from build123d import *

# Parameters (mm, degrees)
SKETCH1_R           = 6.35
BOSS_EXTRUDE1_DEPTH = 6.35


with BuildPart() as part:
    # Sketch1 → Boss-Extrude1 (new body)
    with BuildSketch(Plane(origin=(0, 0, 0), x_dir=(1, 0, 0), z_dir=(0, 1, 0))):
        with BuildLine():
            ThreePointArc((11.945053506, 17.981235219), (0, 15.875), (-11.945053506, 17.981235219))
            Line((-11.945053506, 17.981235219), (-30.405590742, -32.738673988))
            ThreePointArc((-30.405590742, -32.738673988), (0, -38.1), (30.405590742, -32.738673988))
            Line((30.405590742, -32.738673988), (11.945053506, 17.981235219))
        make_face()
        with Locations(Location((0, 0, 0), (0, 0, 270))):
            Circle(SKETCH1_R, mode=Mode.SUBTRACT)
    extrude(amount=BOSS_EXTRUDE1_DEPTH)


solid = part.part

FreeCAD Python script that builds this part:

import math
import FreeCAD as App
import Part
import Sketcher

V = App.Vector
Q = App.Units.Quantity

doc = App.newDocument("Part")
body = doc.addObject("PartDesign::Body", "Body")

# Sketch on XZ plane
sketch1 = body.newObject("Sketcher::SketchObject", "Sketch")
sketch1.AttachmentSupport = (doc.getObject("XZ_Plane"), [""])
sketch1.MapMode = "FlatFace"
sketch1.addGeometry([
    Part.ArcOfCircle(Part.Circle(V(0, -50.8, 0), V(0, 0, 1), 34.925), math.radians(70), math.radians(110)),  # 0
    Part.LineSegment(V(-11.945054, -17.981235, 0), V(-30.405591, 32.738674, 0)),  # 1
    Part.ArcOfCircle(Part.Circle(V(0, -50.8, 0), V(0, 0, 1), 88.9), math.radians(70), math.radians(110)),  # 2
    Part.LineSegment(V(30.405591, 32.738674, 0), V(11.945054, -17.981235, 0)),  # 3
    Part.Circle(V(0, 0, 0), V(0, 0, 1), 6.35),  # 4
], False)
sketch1.addConstraint([
    Sketcher.Constraint("Coincident", 0, 2, 1, 1),
    Sketcher.Constraint("Coincident", 1, 2, 2, 2),
    Sketcher.Constraint("Coincident", 2, 1, 3, 1),
    Sketcher.Constraint("Coincident", 3, 2, 0, 1),
    Sketcher.Constraint("Coincident", 4, 3, -1, 1),
    Sketcher.Constraint("Coincident", 2, 3, 0, 3),
    Sketcher.Constraint("Symmetric", 1, 2, 2, 1, -2),
    Sketcher.Constraint("Horizontal", 0, 2, 3, 2),
    Sketcher.Constraint("Diameter", 4, Q("0.5 in")),
    Sketcher.Constraint("Radius", 2, Q("3.5 in")),
    Sketcher.Constraint("DistanceY", 0, 3, -1, 1, Q("2 in")),
    Sketcher.Constraint("Angle", 1, Q("110 deg")),
    Sketcher.Constraint("Radius", 0, Q("1.375 in")),
    Sketcher.Constraint("DistanceX", 1, 2, -1, 1, 30.405591),
])
pad1 = body.newObject("PartDesign::Pad", "Pad")
pad1.Profile = sketch1
pad1.Length = Q("0.25 in")
pad1.Reversed = True

doc.recompute()
